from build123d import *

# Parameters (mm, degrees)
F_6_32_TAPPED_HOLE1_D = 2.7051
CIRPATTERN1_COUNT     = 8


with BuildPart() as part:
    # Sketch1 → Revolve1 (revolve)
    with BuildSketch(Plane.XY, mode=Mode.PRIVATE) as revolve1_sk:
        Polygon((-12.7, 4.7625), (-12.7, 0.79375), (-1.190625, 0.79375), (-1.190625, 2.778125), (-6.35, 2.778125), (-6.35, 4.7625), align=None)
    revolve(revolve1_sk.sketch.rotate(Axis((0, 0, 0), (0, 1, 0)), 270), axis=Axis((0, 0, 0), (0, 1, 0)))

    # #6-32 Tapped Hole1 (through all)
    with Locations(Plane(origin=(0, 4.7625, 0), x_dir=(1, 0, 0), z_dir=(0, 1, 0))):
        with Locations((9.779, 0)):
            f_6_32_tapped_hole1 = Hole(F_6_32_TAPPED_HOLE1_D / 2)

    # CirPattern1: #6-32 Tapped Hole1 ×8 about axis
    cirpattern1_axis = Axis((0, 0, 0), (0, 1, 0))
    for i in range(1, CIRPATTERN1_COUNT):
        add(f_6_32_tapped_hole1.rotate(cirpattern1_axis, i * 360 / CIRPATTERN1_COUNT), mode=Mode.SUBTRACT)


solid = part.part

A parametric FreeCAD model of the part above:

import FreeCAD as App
import Part
import Sketcher
from FreeCAD import Vector
Q = App.Units.Quantity


def add_polygon(sketch, points):
    """Adds a closed chain of lines whose ends are joined by coincident constraints."""
    first, n = sketch.GeometryCount, len(points)
    for a, b in zip(points, points[1:] + points[:1]):
        sketch.addGeometry(Part.LineSegment(App.Vector(*a, 0), App.Vector(*b, 0)), False)
    for i in range(n):
        sketch.addConstraint(Sketcher.Constraint("Coincident", first + i, 2, first + (i + 1) % n, 1))

doc = App.newDocument("Part")
body = doc.addObject("PartDesign::Body", "Body")

sketch1 = body.newObject("Sketcher::SketchObject", "Sketch")
sketch1.AttachmentSupport = (doc.getObject("XY_Plane"), [""])
sketch1.MapMode = "FlatFace"
add_polygon(sketch1, [(-12.7, 4.8), (-12.7, 0.8), (-1.2, 0.8), (-1.2, 2.8), (-6.3, 2.8), (-6.3, 4.8)])
sketch1.addConstraint([
    Sketcher.Constraint("Vertical", 0),
    Sketcher.Constraint("Horizontal", 1),
    Sketcher.Constraint("Vertical", 2),
    Sketcher.Constraint("Horizontal", 3),
    Sketcher.Constraint("Vertical", 4),
    Sketcher.Constraint("Horizontal", 5),
    Sketcher.Constraint("Equal", 2, 4),
    Sketcher.Constraint("DistanceX", 5, 2, 5, 1, Q("0.25 in")),
    Sketcher.Constraint("DistanceX", 0, 2, -1, 1, Q("0.5 in")),
    Sketcher.Constraint("DistanceX", 1, 1, 1, 2, Q("0.453125 in")),
    Sketcher.Constraint("DistanceY", 0, 2, 0, 1, Q("0.15625 in")),
    Sketcher.Constraint("DistanceY", -1, 1, 0, 2, Q("0.03125 in")),
])
revolution = body.newObject("PartDesign::Revolution", "Revolution")
revolution.Profile = sketch1
revolution.ReferenceAxis = (sketch1, ["V_Axis"])
revolution.Angle = 360

sketch2 = body.newObject("Sketcher::SketchObject", "Sketch001")
sketch2.AttachmentSupport = (doc.getObject("XZ_Plane"), [""])
sketch2.MapMode = "FlatFace"
sketch2.AttachmentOffset = App.Placement(Vector(0, 0, -0.1875 * 25.4), App.Rotation())
sketch2.addGeometry(Part.Circle(Vector(9.8, 0, 0), Vector(0, 0, 1), 1.4), False)
sketch2.addConstraint([
    Sketcher.Constraint("PointOnObject", 0, 3, -1),
    Sketcher.Constraint("Diameter", 0, Q("0.1065 in")),
    Sketcher.Constraint("DistanceX", -1, 1, 0, 3, Q("0.385 in")),
])
doc.recompute()
hole = body.newObject("PartDesign::Hole", "Hole")
hole.Profile = sketch2
hole.ThreadType = "None"
hole.Diameter = Q("0.1065 in")
hole.DepthType = "ThroughAll"
hole.Reversed = True
doc.recompute()

polarpattern = body.newObject("PartDesign::PolarPattern", "PolarPattern")
polarpattern.Originals = [hole]
polarpattern.Axis = (doc.getObject("Y_Axis"), [""])
polarpattern.Angle = 360
polarpattern.Occurrences = 8
body.Tip = polarpattern

doc.recompute()
